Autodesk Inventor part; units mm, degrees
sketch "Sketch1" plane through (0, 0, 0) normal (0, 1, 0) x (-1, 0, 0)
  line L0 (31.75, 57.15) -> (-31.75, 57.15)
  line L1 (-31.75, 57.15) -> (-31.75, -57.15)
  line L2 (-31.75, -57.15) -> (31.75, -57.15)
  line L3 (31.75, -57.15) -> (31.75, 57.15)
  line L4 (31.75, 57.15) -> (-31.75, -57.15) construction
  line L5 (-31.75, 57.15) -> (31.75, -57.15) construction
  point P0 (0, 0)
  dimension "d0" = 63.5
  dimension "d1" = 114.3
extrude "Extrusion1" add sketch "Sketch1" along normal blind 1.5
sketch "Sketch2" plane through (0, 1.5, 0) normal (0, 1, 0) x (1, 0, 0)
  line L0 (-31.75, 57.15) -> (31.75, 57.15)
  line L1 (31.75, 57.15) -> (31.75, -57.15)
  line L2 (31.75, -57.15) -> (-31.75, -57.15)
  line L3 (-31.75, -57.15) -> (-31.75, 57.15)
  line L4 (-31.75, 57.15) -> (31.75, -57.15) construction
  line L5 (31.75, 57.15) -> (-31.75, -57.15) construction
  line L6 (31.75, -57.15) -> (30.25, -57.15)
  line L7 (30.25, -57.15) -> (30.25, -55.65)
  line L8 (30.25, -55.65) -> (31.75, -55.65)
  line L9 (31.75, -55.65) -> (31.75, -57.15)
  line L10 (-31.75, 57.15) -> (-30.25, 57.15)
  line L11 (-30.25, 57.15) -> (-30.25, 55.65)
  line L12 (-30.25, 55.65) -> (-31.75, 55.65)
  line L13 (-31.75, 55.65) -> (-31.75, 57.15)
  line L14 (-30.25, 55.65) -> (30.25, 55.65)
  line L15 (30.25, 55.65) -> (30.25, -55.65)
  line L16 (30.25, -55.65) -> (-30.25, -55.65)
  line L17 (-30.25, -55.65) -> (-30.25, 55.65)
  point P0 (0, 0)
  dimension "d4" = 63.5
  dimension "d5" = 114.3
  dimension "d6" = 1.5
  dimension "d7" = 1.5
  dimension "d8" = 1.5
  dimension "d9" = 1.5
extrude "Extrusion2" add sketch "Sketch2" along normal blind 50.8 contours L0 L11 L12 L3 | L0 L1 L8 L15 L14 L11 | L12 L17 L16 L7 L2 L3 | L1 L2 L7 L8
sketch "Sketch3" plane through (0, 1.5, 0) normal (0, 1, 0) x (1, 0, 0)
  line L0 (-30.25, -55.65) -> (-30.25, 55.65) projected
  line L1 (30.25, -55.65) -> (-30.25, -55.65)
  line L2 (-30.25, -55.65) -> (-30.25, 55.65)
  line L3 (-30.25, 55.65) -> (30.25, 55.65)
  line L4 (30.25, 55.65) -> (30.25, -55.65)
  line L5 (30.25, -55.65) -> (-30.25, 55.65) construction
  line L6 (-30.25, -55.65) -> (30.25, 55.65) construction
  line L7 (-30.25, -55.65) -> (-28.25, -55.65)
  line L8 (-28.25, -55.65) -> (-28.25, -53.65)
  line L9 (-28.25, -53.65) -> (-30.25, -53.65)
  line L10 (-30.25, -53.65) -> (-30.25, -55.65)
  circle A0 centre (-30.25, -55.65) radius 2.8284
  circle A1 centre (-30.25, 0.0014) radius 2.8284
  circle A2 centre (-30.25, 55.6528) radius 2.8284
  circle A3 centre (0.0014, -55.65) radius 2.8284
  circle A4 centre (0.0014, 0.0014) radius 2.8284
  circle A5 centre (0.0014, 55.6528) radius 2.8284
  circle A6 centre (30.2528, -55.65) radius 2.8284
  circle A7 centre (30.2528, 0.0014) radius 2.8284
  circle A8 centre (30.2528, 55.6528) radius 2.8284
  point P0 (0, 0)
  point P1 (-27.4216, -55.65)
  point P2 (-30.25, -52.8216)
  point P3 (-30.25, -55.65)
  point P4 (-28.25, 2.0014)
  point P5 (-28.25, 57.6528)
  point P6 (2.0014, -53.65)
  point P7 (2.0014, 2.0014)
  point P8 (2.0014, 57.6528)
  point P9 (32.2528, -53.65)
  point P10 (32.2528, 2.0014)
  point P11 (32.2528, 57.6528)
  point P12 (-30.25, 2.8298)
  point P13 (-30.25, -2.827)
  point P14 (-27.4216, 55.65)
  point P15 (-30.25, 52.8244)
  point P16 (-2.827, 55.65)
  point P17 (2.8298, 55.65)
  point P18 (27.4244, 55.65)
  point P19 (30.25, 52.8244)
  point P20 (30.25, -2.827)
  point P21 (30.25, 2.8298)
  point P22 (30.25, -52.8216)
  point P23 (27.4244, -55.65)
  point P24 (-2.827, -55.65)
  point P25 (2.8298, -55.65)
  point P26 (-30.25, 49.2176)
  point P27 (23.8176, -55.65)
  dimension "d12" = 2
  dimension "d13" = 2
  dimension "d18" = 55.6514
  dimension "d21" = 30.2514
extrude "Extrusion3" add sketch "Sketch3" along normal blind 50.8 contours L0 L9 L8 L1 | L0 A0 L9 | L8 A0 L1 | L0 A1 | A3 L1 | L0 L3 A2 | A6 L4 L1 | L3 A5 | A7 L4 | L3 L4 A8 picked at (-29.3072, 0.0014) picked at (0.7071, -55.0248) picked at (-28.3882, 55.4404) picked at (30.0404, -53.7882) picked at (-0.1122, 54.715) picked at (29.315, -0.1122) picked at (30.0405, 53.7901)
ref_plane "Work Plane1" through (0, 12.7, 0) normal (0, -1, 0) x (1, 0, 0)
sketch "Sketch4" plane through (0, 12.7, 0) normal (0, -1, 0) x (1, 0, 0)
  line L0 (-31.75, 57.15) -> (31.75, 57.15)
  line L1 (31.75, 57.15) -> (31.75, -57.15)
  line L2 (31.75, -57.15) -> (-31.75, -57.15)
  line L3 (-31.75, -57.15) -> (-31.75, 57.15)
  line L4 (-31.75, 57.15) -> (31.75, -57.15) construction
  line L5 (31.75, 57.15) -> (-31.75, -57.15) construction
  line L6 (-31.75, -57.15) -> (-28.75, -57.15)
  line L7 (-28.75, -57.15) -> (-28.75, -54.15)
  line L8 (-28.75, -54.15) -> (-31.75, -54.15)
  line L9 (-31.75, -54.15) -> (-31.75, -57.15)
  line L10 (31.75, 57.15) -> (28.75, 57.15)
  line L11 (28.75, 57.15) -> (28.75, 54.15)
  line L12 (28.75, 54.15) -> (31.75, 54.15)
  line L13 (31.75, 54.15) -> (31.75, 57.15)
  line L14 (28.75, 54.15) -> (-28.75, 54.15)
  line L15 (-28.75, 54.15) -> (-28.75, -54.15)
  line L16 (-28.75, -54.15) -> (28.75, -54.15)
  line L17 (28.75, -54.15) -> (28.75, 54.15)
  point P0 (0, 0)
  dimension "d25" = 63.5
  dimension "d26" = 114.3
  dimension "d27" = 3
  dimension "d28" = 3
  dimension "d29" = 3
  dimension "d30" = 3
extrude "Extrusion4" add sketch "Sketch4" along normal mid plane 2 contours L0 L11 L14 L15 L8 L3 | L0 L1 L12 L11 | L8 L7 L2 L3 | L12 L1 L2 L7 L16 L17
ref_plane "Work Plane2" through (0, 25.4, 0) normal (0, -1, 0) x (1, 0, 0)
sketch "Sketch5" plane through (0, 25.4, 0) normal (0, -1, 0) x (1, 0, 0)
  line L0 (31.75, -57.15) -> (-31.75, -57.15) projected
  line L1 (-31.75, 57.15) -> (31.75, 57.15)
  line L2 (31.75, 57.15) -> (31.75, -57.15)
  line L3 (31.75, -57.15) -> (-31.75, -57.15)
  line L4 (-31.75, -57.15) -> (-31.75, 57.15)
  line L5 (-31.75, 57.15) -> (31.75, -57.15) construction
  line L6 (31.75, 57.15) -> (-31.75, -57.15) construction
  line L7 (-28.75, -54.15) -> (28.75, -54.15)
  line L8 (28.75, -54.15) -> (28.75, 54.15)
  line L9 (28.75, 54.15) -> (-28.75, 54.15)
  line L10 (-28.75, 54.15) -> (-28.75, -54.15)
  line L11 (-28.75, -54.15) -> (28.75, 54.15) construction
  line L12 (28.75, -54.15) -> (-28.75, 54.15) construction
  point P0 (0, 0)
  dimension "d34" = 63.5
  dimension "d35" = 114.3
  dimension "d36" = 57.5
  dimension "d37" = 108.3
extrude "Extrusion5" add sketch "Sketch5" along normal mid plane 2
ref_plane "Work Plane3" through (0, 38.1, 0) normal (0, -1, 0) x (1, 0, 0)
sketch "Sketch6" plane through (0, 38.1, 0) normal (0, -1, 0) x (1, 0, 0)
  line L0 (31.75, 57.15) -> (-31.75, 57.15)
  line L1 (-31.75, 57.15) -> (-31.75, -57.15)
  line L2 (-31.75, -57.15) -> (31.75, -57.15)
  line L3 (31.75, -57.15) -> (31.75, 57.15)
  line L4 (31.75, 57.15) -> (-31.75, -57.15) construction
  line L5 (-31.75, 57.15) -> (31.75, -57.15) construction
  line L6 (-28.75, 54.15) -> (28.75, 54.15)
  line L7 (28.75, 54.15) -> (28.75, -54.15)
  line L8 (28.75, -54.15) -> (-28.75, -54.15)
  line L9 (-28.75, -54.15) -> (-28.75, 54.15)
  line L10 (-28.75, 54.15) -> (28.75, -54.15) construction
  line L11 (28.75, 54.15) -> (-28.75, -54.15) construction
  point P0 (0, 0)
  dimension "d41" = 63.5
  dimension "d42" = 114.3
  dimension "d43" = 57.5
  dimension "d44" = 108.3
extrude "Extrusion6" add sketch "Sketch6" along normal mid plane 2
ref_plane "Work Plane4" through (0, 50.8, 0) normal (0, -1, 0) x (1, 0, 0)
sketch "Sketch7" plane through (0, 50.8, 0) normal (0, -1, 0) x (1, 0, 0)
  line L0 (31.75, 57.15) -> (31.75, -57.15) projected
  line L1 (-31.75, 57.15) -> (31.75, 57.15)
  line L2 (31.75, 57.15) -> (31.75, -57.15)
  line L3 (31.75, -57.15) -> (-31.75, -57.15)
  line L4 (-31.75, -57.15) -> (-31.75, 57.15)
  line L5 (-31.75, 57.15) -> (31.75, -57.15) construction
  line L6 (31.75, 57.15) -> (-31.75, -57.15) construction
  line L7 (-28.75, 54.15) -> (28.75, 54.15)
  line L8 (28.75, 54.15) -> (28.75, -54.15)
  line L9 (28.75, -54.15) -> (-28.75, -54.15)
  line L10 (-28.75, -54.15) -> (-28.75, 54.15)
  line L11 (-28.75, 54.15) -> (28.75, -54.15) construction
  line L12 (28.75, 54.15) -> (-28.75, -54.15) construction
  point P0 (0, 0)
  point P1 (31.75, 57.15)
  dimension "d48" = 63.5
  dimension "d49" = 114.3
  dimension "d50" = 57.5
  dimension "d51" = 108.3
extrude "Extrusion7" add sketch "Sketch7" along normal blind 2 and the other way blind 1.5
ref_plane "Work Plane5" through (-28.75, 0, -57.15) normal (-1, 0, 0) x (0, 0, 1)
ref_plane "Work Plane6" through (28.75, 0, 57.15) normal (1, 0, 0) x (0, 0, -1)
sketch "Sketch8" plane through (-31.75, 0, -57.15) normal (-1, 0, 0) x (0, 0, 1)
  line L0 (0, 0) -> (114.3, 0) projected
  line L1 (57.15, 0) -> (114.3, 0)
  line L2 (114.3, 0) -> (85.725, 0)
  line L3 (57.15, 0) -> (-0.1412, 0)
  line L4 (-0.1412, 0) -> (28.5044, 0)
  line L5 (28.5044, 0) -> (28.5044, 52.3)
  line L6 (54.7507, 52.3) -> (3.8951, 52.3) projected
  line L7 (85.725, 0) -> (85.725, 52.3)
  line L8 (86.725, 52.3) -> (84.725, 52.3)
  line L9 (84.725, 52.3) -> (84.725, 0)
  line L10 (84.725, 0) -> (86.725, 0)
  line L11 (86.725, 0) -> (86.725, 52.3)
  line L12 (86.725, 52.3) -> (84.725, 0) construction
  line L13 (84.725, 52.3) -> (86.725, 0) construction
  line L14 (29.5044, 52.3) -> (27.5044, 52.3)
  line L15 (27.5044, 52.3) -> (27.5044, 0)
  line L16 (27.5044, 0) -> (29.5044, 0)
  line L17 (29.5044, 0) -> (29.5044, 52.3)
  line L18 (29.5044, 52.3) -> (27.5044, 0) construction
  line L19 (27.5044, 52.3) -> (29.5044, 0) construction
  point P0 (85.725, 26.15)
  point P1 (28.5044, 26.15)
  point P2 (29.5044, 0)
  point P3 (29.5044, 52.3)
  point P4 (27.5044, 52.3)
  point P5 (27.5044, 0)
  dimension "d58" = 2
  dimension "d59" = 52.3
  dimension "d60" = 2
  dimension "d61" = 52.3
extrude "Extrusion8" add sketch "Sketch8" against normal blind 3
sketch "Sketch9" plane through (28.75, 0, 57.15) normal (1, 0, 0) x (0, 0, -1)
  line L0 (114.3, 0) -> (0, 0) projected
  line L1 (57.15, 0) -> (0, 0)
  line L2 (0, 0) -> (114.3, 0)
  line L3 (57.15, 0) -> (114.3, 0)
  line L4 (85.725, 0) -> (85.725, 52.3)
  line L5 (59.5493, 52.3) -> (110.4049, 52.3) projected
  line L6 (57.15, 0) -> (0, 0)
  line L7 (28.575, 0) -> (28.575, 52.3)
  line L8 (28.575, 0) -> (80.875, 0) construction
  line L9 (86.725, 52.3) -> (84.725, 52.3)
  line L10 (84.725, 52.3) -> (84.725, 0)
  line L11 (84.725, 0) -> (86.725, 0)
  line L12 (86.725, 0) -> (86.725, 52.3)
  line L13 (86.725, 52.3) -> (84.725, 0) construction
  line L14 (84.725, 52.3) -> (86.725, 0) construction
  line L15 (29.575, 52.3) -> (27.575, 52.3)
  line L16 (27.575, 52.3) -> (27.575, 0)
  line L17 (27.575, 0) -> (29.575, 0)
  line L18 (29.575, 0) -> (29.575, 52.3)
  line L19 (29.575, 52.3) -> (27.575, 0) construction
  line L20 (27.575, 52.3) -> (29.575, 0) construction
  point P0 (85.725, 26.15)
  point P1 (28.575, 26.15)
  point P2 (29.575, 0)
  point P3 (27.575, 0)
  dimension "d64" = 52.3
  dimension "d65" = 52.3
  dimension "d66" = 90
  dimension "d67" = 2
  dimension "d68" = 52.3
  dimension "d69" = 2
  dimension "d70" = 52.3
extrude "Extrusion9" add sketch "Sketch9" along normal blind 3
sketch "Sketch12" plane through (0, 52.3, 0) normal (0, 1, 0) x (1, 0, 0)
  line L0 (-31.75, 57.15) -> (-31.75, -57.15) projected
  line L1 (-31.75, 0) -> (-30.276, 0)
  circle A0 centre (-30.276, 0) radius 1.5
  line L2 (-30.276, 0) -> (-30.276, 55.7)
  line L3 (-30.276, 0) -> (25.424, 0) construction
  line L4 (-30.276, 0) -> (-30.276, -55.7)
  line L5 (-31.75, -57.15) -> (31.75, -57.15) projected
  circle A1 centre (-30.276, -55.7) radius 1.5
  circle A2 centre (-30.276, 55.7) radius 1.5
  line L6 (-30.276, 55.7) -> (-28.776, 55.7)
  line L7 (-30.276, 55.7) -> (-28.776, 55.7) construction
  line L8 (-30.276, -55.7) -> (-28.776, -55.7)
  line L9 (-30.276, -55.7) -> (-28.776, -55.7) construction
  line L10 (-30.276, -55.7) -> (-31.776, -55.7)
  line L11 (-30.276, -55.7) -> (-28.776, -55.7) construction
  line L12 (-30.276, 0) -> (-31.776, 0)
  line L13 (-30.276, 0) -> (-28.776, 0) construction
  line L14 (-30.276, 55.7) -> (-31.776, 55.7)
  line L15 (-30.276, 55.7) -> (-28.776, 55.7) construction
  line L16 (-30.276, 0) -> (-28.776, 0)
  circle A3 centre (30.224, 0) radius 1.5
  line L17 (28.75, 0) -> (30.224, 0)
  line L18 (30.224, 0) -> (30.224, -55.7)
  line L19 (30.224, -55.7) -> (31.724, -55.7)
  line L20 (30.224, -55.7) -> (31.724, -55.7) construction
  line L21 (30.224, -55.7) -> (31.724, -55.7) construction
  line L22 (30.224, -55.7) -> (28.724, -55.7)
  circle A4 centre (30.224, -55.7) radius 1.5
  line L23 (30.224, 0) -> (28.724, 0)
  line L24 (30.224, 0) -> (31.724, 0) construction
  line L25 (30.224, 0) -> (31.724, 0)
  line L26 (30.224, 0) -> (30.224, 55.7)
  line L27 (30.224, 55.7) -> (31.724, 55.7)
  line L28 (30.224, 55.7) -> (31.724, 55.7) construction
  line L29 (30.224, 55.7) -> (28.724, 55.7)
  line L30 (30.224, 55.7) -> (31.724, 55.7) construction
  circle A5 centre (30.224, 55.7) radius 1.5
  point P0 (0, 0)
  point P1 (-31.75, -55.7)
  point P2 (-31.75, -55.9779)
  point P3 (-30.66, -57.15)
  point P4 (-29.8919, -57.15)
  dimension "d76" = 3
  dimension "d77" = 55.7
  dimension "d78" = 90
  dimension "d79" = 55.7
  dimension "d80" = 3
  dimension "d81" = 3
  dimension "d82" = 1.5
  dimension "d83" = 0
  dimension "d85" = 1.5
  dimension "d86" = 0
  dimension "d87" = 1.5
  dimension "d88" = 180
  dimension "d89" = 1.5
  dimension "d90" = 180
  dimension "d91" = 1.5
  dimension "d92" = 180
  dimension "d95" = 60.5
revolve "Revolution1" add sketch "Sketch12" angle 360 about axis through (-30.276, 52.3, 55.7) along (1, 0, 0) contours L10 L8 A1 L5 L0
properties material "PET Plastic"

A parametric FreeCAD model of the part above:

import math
import FreeCAD as App
import Part
import Sketcher
from FreeCAD import Vector


def add_polygon(sketch, points):
    """Adds a closed chain of lines whose ends are joined by coincident constraints."""
    first, n = sketch.GeometryCount, len(points)
    for a, b in zip(points, points[1:] + points[:1]):
        sketch.addGeometry(Part.LineSegment(App.Vector(*a, 0), App.Vector(*b, 0)), False)
    for i in range(n):
        sketch.addConstraint(Sketcher.Constraint("Coincident", first + i, 2, first + (i + 1) % n, 1))

doc = App.newDocument("Part")
params = doc.addObject("Spreadsheet::Sheet", "Params")
for row, (alias, value) in enumerate([
    ("sketch1_width", "63.5 mm"),
    ("sketch1_height", "114.3 mm"),
    ("pad1_length", "1.5 mm"),
    ("sketch2_width", "63.5 mm"),
    ("sketch2_height", "114.3 mm"),
    ("pad2_length", "50.8 mm"),
    ("pad3_length", "50.8 mm"),
    ("sketch4_width", "63.5 mm"),
    ("sketch4_height", "114.3 mm"),
    ("pad4_length", "2 mm"),
    ("sketch5_width", "63.5 mm"),
    ("sketch5_width2", "57.5 mm"),
    ("sketch5_height", "114.3 mm"),
    ("sketch5_height2", "108.3 mm"),
    ("pad5_length", "2 mm"),
    ("sketch6_width", "63.5 mm"),
    ("sketch6_width2", "57.5 mm"),
    ("sketch6_height", "114.3 mm"),
    ("sketch6_height2", "108.3 mm"),
    ("pad6_length", "2 mm"),
    ("sketch7_width", "63.5 mm"),
    ("sketch7_width2", "57.5 mm"),
    ("sketch7_height", "114.3 mm"),
    ("sketch7_height2", "108.3 mm"),
    ("pad7_length", "2 mm"),
    ("pad7_length2", "1.5 mm"),
    ("sketch8_height", "2 mm"),
    ("sketch8_width", "52.3 mm"),
    ("pad8_length", "3 mm"),
    ("sketch9_height", "2 mm"),
    ("sketch9_width", "52.3 mm"),
    ("pad9_length", "3 mm"),
    ("sketch10_radius", "1.5 mm"),
    ("revolution_angle", "360 deg"),
], start=1):
    params.set(f"A{row}", alias)
    params.set(f"B{row}", "=" + value)
    params.setAlias(f"B{row}", alias)

body = doc.addObject("PartDesign::Body", "Body")

sketch1 = doc.addObject("Sketcher::SketchObject", "Sketch")
body.addObject(sketch1)
sketch1.AttachmentSupport = (doc.XZ_Plane, [""])
sketch1.MapMode = "FlatFace"
add_polygon(sketch1, [(-32, -57), (-32, 57), (32, 57), (32, -57)])
sketch1.addConstraint([
    Sketcher.Constraint("Vertical", 0),
    Sketcher.Constraint("Horizontal", 1),
    Sketcher.Constraint("Vertical", 2),
    Sketcher.Constraint("Horizontal", 3),
    Sketcher.Constraint("Symmetric", 0, 2, 2, 2, -1, 1),
    Sketcher.Constraint("DistanceX", 1, 1, 1, 2, 63.5),
    Sketcher.Constraint("DistanceY", 0, 1, 0, 2, 114.3),
])
sketch1.setExpression("Constraints[9]", "Params.sketch1_width")
sketch1.setExpression("Constraints[10]", "Params.sketch1_height")
pad1 = doc.addObject("PartDesign::Pad", "Pad")
body.addObject(pad1)
pad1.Profile = sketch1
pad1.setExpression("Length", "Params.pad1_length")
pad1.Reversed = True

sketch2 = doc.addObject("Sketcher::SketchObject", "Sketch001")
body.addObject(sketch2)
sketch2.AttachmentSupport = (doc.XZ_Plane, [""])
sketch2.MapMode = "FlatFace"
sketch2.AttachmentOffset = App.Placement(Vector(0, 0, -1.5), App.Rotation())
add_polygon(sketch2, [(-32, -57), (-32, 57), (32, 57), (32, -57)])
add_polygon(sketch2, [(30, -56), (30, 56), (-30, 56), (-30, -56)])
sketch2.addConstraint([
    Sketcher.Constraint("Vertical", 0),
    Sketcher.Constraint("Horizontal", 1),
    Sketcher.Constraint("Vertical", 2),
    Sketcher.Constraint("Horizontal", 3),
    Sketcher.Constraint("Vertical", 4),
    Sketcher.Constraint("Horizontal", 5),
    Sketcher.Constraint("Vertical", 6),
    Sketcher.Constraint("Horizontal", 7),
    Sketcher.Constraint("Symmetric", 0, 2, 2, 2, -1, 1),
    Sketcher.Constraint("Symmetric", 4, 2, 6, 2, -1, 1),
    Sketcher.Constraint("DistanceX", 1, 1, 1, 2, 63.5),
    Sketcher.Constraint("DistanceY", 0, 1, 0, 2, 114.3),
    Sketcher.Constraint("DistanceX", 4, 2, 1, 2, 1.5),
    Sketcher.Constraint("DistanceY", 4, 2, 1, 2, 1.5),
])
sketch2.setExpression("Constraints[18]", "Params.sketch2_width")
sketch2.setExpression("Constraints[19]", "Params.sketch2_height")
pad2 = doc.addObject("PartDesign::Pad", "Pad001")
body.addObject(pad2)
pad2.Profile = sketch2
pad2.setExpression("Length", "Params.pad2_length")
pad2.Reversed = True

sketch3 = doc.addObject("Sketcher::SketchObject", "Sketch002")
body.addObject(sketch3)
sketch3.AttachmentSupport = (doc.XZ_Plane, [""])
sketch3.MapMode = "FlatFace"
sketch3.AttachmentOffset = App.Placement(Vector(0, 0, -1.5), App.Rotation())
sketch3.addGeometry([
    Part.LineSegment(Vector(-30.2, 55.6, 0), Vector(-27.4, 55.6, 0)),
    Part.ArcOfCircle(Part.Circle(Vector(-30.2, 55.6, 0), Vector(0, 0, 1), 2.8), math.radians(-90), math.radians(0)),
    Part.LineSegment(Vector(-30.2, 52.8, 0), Vector(-30.2, 55.6, 0)),
    Part.LineSegment(Vector(-30.2, -2.8, 0), Vector(-30.2, 2.8, 0)),
    Part.ArcOfCircle(Part.Circle(Vector(-30.2, 0, 0), Vector(0, 0, 1), 2.8), math.radians(-90), math.radians(90)),
    Part.ArcOfCircle(Part.Circle(Vector(0, 55.6, 0), Vector(0, 0, 1), 2.8), math.radians(180), math.radians(360)),
    Part.LineSegment(Vector(-2.8, 55.6, 0), Vector(2.8, 55.6, 0)),
    Part.LineSegment(Vector(-30.2, -55.6, 0), Vector(-30.2, -52.8, 0)),
    Part.ArcOfCircle(Part.Circle(Vector(-30.2, -55.7, 0), Vector(0, 0, 1), 2.8), math.radians(0), math.radians(90)),
    Part.LineSegment(Vector(-27.4, -55.6, 0), Vector(-30.2, -55.6, 0)),
    Part.ArcOfCircle(Part.Circle(Vector(30.3, 55.6, 0), Vector(0, 0, 1), 2.8), math.radians(180), math.radians(270)),
    Part.LineSegment(Vector(27.4, 55.6, 0), Vector(30.2, 55.6, 0)),
    Part.LineSegment(Vector(30.2, 55.6, 0), Vector(30.2, 52.8, 0)),
    Part.LineSegment(Vector(2.8, -55.6, 0), Vector(-2.8, -55.6, 0)),
    Part.ArcOfCircle(Part.Circle(Vector(0, -55.7, 0), Vector(0, 0, 1), 2.8), math.radians(0), math.radians(180)),
    Part.ArcOfCircle(Part.Circle(Vector(30.3, 0, 0), Vector(0, 0, 1), 2.8), math.radians(90), math.radians(270)),
    Part.LineSegment(Vector(30.2, 2.8, 0), Vector(30.2, -2.8, 0)),
    Part.LineSegment(Vector(30.2, -55.6, 0), Vector(27.4, -55.6, 0)),
    Part.ArcOfCircle(Part.Circle(Vector(30.3, -55.7, 0), Vector(0, 0, 1), 2.8), math.radians(90), math.radians(180)),
    Part.LineSegment(Vector(30.2, -52.8, 0), Vector(30.2, -55.6, 0)),
], False)
sketch3.addConstraint([
    Sketcher.Constraint("Coincident", 0, 2, 1, 2),
    Sketcher.Constraint("Coincident", 1, 1, 2, 1),
    Sketcher.Constraint("Coincident", 2, 2, 0, 1),
    Sketcher.Constraint("Coincident", 3, 1, 4, 1),
    Sketcher.Constraint("Coincident", 4, 2, 3, 2),
    Sketcher.Constraint("Coincident", 5, 1, 6, 1),
    Sketcher.Constraint("Coincident", 6, 2, 5, 2),
    Sketcher.Constraint("Coincident", 7, 2, 8, 2),
    Sketcher.Constraint("Coincident", 8, 1, 9, 1),
    Sketcher.Constraint("Coincident", 9, 2, 7, 1),
    Sketcher.Constraint("Coincident", 10, 1, 11, 1),
    Sketcher.Constraint("Coincident", 11, 2, 12, 1),
    Sketcher.Constraint("Coincident", 12, 2, 10, 2),
    Sketcher.Constraint("Coincident", 13, 1, 14, 1),
    Sketcher.Constraint("Coincident", 14, 2, 13, 2),
    Sketcher.Constraint("Coincident", 15, 1, 16, 1),
    Sketcher.Constraint("Coincident", 16, 2, 15, 2),
    Sketcher.Constraint("Coincident", 17, 2, 18, 2),
    Sketcher.Constraint("Coincident", 18, 1, 19, 1),
    Sketcher.Constraint("Coincident", 19, 2, 17, 1),
    Sketcher.Constraint("Horizontal", 0),
    Sketcher.Constraint("Vertical", 2),
    Sketcher.Constraint("Vertical", 3),
    Sketcher.Constraint("Horizontal", 6),
    Sketcher.Constraint("Vertical", 7),
    Sketcher.Constraint("Horizontal", 9),
    Sketcher.Constraint("Horizontal", 11),
    Sketcher.Constraint("Vertical", 12),
    Sketcher.Constraint("Horizontal", 13),
    Sketcher.Constraint("Vertical", 16),
    Sketcher.Constraint("Horizontal", 17),
    Sketcher.Constraint("Vertical", 19),
    Sketcher.Constraint("Coincident", 2, 2, 1, 3),
    Sketcher.Constraint("Equal", 1, 4),
    Sketcher.Constraint("Equal", 4, 5),
    Sketcher.Constraint("Equal", 5, 8),
    Sketcher.Constraint("Equal", 8, 10),
    Sketcher.Constraint("Equal", 10, 14),
    Sketcher.Constraint("Equal", 14, 15),
    Sketcher.Constraint("Equal", 15, 18),
    Sketcher.Constraint("Symmetric", 9, 2, 11, 2, -1, 1),
    Sketcher.Constraint("Symmetric", 2, 2, 19, 2, -1, 1),
    Sketcher.Constraint("Symmetric", 2, 2, 11, 2, -2),
    Sketcher.Constraint("Symmetric", 4, 2, 15, 1, -2),
    Sketcher.Constraint("Symmetric", 6, 2, 13, 1, -1),
    Sketcher.Constraint("Horizontal", 1, 3, 5, 3),
    Sketcher.Constraint("Horizontal", 5, 3, 10, 3),
    Sketcher.Constraint("Horizontal", 8, 3, 14, 3),
    Sketcher.Constraint("Horizontal", 14, 3, 18, 3),
    Sketcher.Constraint("Horizontal", 2, 2, 5, 1),
    Sketcher.Constraint("Vertical", 1, 3, 4, 3),
    Sketcher.Constraint("Vertical", 4, 3, 8, 3),
    Sketcher.Constraint("Vertical", 10, 3, 15, 3),
    Sketcher.Constraint("Vertical", 15, 3, 18, 3),
    Sketcher.Constraint("Vertical", 2, 2, 3, 1),
    Sketcher.Constraint("Equal", 17, 7),
    Sketcher.Constraint("Radius", 1, 2.8284),
    Sketcher.Constraint("DistanceY", 4, 3, 1, 3, 55.6514),
    Sketcher.Constraint("DistanceX", 1, 3, 5, 3, 30.2514),
    Sketcher.Constraint("DistanceY", 8, 3, 4, 3, 55.6514),
    Sketcher.Constraint("DistanceX", 5, 3, 10, 3, 30.2514),
    Sketcher.Constraint("DistanceX", 1, 3, -1, 1, 30.25),
])
pad3 = doc.addObject("PartDesign::Pad", "Pad002")
body.addObject(pad3)
pad3.Profile = sketch3
pad3.setExpression("Length", "Params.pad3_length")
pad3.Reversed = True

sketch4 = doc.addObject("Sketcher::SketchObject", "Sketch003")
body.addObject(sketch4)
sketch4.AttachmentSupport = (doc.XZ_Plane, [""])
sketch4.MapMode = "FlatFace"
sketch4.AttachmentOffset = App.Placement(Vector(0, 0, -12.7), App.Rotation())
add_polygon(sketch4, [(-32, 57), (-32, -57), (32, -57), (32, 57)])
add_polygon(sketch4, [(-29, 54), (29, 54), (29, -54), (-29, -54)])
sketch4.addConstraint([
    Sketcher.Constraint("Vertical", 0),
    Sketcher.Constraint("Horizontal", 1),
    Sketcher.Constraint("Vertical", 2),
    Sketcher.Constraint("Horizontal", 3),
    Sketcher.Constraint("Horizontal", 4),
    Sketcher.Constraint("Vertical", 5),
    Sketcher.Constraint("Horizontal", 6),
    Sketcher.Constraint("Vertical", 7),
    Sketcher.Constraint("Symmetric", 0, 2, 2, 2, -1, 1),
    Sketcher.Constraint("Symmetric", 4, 2, 6, 2, -1, 1),
    Sketcher.Constraint("DistanceX", 1, 1, 1, 2, 63.5),
    Sketcher.Constraint("DistanceY", 0, 2, 0, 1, 114.3),
    Sketcher.Constraint("DistanceX", 4, 2, 2, 2, 3.0),
    Sketcher.Constraint("DistanceY", 4, 2, 2, 2, 3.0),
])
sketch4.setExpression("Constraints[18]", "Params.sketch4_width")
sketch4.setExpression("Constraints[19]", "Params.sketch4_height")
pad4 = doc.addObject("PartDesign::Pad", "Pad003")
body.addObject(pad4)
pad4.Profile = sketch4
pad4.setExpression("Length", "Params.pad4_length")
pad4.Midplane = True

sketch5 = doc.addObject("Sketcher::SketchObject", "Sketch004")
body.addObject(sketch5)
sketch5.AttachmentSupport = (doc.XZ_Plane, [""])
sketch5.MapMode = "FlatFace"
sketch5.AttachmentOffset = App.Placement(Vector(0, 0, -25.4), App.Rotation())
add_polygon(sketch5, [(-32, -57), (32, -57), (32, 57), (-32, 57)])
add_polygon(sketch5, [(29, -54), (-29, -54), (-29, 54), (29, 54)])
sketch5.addConstraint([
    Sketcher.Constraint("Horizontal", 0),
    Sketcher.Constraint("Vertical", 1),
    Sketcher.Constraint("Horizontal", 2),
    Sketcher.Constraint("Vertical", 3),
    Sketcher.Constraint("Horizontal", 4),
    Sketcher.Constraint("Vertical", 5),
    Sketcher.Constraint("Horizontal", 6),
    Sketcher.Constraint("Vertical", 7),
    Sketcher.Constraint("Symmetric", 0, 2, 2, 2, -1, 1),
    Sketcher.Constraint("Symmetric", 4, 2, 6, 2, -1, 1),
    Sketcher.Constraint("DistanceX", 0, 1, 0, 2, 63.5),
    Sketcher.Constraint("DistanceX", 4, 2, 4, 1, 57.5),
    Sketcher.Constraint("DistanceY", 1, 1, 1, 2, 114.3),
    Sketcher.Constraint("DistanceY", 5, 1, 5, 2, 108.3),
])
sketch5.setExpression("Constraints[18]", "Params.sketch5_width")
sketch5.setExpression("Constraints[19]", "Params.sketch5_width2")
sketch5.setExpression("Constraints[20]", "Params.sketch5_height")
sketch5.setExpression("Constraints[21]", "Params.sketch5_height2")
pad5 = doc.addObject("PartDesign::Pad", "Pad004")
body.addObject(pad5)
pad5.Profile = sketch5
pad5.setExpression("Length", "Params.pad5_length")
pad5.Midplane = True

sketch6 = doc.addObject("Sketcher::SketchObject", "Sketch005")
body.addObject(sketch6)
sketch6.AttachmentSupport = (doc.XZ_Plane, [""])
sketch6.MapMode = "FlatFace"
sketch6.AttachmentOffset = App.Placement(Vector(0, 0, -38.1), App.Rotation())
add_polygon(sketch6, [(32, -57), (32, 57), (-32, 57), (-32, -57)])
add_polygon(sketch6, [(-29, -54), (-29, 54), (29, 54), (29, -54)])
sketch6.addConstraint([
    Sketcher.Constraint("Vertical", 0),
    Sketcher.Constraint("Horizontal", 1),
    Sketcher.Constraint("Vertical", 2),
    Sketcher.Constraint("Horizontal", 3),
    Sketcher.Constraint("Vertical", 4),
    Sketcher.Constraint("Horizontal", 5),
    Sketcher.Constraint("Vertical", 6),
    Sketcher.Constraint("Horizontal", 7),
    Sketcher.Constraint("Symmetric", 0, 2, 2, 2, -1, 1),
    Sketcher.Constraint("Symmetric", 4, 2, 6, 2, -1, 1),
    Sketcher.Constraint("DistanceX", 1, 2, 1, 1, 63.5),
    Sketcher.Constraint("DistanceX", 5, 1, 5, 2, 57.5),
    Sketcher.Constraint("DistanceY", 0, 1, 0, 2, 114.3),
    Sketcher.Constraint("DistanceY", 4, 1, 4, 2, 108.3),
])
sketch6.setExpression("Constraints[18]", "Params.sketch6_width")
sketch6.setExpression("Constraints[19]", "Params.sketch6_width2")
sketch6.setExpression("Constraints[20]", "Params.sketch6_height")
sketch6.setExpression("Constraints[21]", "Params.sketch6_height2")
pad6 = doc.addObject("PartDesign::Pad", "Pad005")
body.addObject(pad6)
pad6.Profile = sketch6
pad6.setExpression("Length", "Params.pad6_length")
pad6.Midplane = True

sketch7 = doc.addObject("Sketcher::SketchObject", "Sketch006")
body.addObject(sketch7)
sketch7.AttachmentSupport = (doc.XZ_Plane, [""])
sketch7.MapMode = "FlatFace"
sketch7.AttachmentOffset = App.Placement(Vector(0, 0, -50.8), App.Rotation())
add_polygon(sketch7, [(32, -57), (32, 57), (-32, 57), (-32, -57)])
add_polygon(sketch7, [(-29, -54), (-29, 54), (29, 54), (29, -54)])
sketch7.addConstraint([
    Sketcher.Constraint("Vertical", 0),
    Sketcher.Constraint("Horizontal", 1),
    Sketcher.Constraint("Vertical", 2),
    Sketcher.Constraint("Horizontal", 3),
    Sketcher.Constraint("Vertical", 4),
    Sketcher.Constraint("Horizontal", 5),
    Sketcher.Constraint("Vertical", 6),
    Sketcher.Constraint("Horizontal", 7),
    Sketcher.Constraint("Symmetric", 0, 2, 2, 2, -1, 1),
    Sketcher.Constraint("Symmetric", 4, 2, 6, 2, -1, 1),
    Sketcher.Constraint("DistanceX", 1, 2, 1, 1, 63.5),
    Sketcher.Constraint("DistanceX", 5, 1, 5, 2, 57.5),
    Sketcher.Constraint("DistanceY", 0, 1, 0, 2, 114.3),
    Sketcher.Constraint("DistanceY", 4, 1, 4, 2, 108.3),
])
sketch7.setExpression("Constraints[18]", "Params.sketch7_width")
sketch7.setExpression("Constraints[19]", "Params.sketch7_width2")
sketch7.setExpression("Constraints[20]", "Params.sketch7_height")
sketch7.setExpression("Constraints[21]", "Params.sketch7_height2")
pad7 = doc.addObject("PartDesign::Pad", "Pad006")
body.addObject(pad7)
pad7.Profile = sketch7
pad7.Type = "TwoLengths"
pad7.setExpression("Length", "Params.pad7_length")
pad7.setExpression("Length2", "Params.pad7_length2")

sketch8 = doc.addObject("Sketcher::SketchObject", "Sketch007")
body.addObject(sketch8)
sketch8.AttachmentSupport = (doc.YZ_Plane, [""])
sketch8.MapMode = "FlatFace"
sketch8.AttachmentOffset = App.Placement(Vector(0, 0, -31.75), App.Rotation())
add_polygon(sketch8, [(52.3, -29.6), (0, -29.6), (0, -27.6), (52.3, -27.6)])
add_polygon(sketch8, [(52.3, 27.6), (0, 27.6), (0, 29.6), (52.3, 29.6)])
sketch8.addConstraint([
    Sketcher.Constraint("Horizontal", 0),
    Sketcher.Constraint("Vertical", 1),
    Sketcher.Constraint("Horizontal", 2),
    Sketcher.Constraint("Vertical", 3),
    Sketcher.Constraint("Horizontal", 4),
    Sketcher.Constraint("Vertical", 5),
    Sketcher.Constraint("Horizontal", 6),
    Sketcher.Constraint("Vertical", 7),
    Sketcher.Constraint("PointOnObject", 0, 2, -2),
    Sketcher.Constraint("PointOnObject", 4, 2, -2),
    Sketcher.Constraint("Vertical", 3, 2, 6, 2),
    Sketcher.Constraint("Equal", 3, 5),
    Sketcher.Constraint("DistanceY", 1, 1, 1, 2, 2.0),
    Sketcher.Constraint("DistanceX", 0, 2, 0, 1, 52.3),
    Sketcher.Constraint("DistanceY", -1, 1, 4, 2, 27.575),
    Sketcher.Constraint("DistanceY", 0, 2, -1, 1, 29.6456),
])
sketch8.setExpression("Constraints[20]", "Params.sketch8_height")
sketch8.setExpression("Constraints[21]", "Params.sketch8_width")
pad8 = doc.addObject("PartDesign::Pad", "Pad007")
body.addObject(pad8)
pad8.Profile = sketch8
pad8.setExpression("Length", "Params.pad8_length")

sketch9 = doc.addObject("Sketcher::SketchObject", "Sketch008")
body.addObject(sketch9)
sketch9.AttachmentSupport = (doc.YZ_Plane, [""])
sketch9.MapMode = "FlatFace"
sketch9.AttachmentOffset = App.Placement(Vector(0, 0, 28.75), App.Rotation())
add_polygon(sketch9, [(0, 27.6), (52.3, 27.6), (52.3, 29.6), (0, 29.6)])
add_polygon(sketch9, [(0, -29.6), (52.3, -29.6), (52.3, -27.6), (0, -27.6)])
sketch9.addConstraint([
    Sketcher.Constraint("Horizontal", 0),
    Sketcher.Constraint("Vertical", 1),
    Sketcher.Constraint("Horizontal", 2),
    Sketcher.Constraint("Vertical", 3),
    Sketcher.Constraint("Horizontal", 4),
    Sketcher.Constraint("Vertical", 5),
    Sketcher.Constraint("Horizontal", 6),
    Sketcher.Constraint("Vertical", 7),
    Sketcher.Constraint("Symmetric", 3, 2, 6, 2, -1, 1),
    Sketcher.Constraint("Symmetric", 1, 2, 4, 2, -1),
    Sketcher.Constraint("PointOnObject", 2, 2, -2),
    Sketcher.Constraint("DistanceY", 1, 1, 1, 2, 2.0),
    Sketcher.Constraint("DistanceX", 0, 1, 0, 2, 52.3),
    Sketcher.Constraint("DistanceY", 4, 2, 0, 2, 57.15),
])
sketch9.setExpression("Constraints[19]", "Params.sketch9_height")
sketch9.setExpression("Constraints[20]", "Params.sketch9_width")
pad9 = doc.addObject("PartDesign::Pad", "Pad008")
body.addObject(pad9)
pad9.Profile = sketch9
pad9.setExpression("Length", "Params.pad9_length")

sketch10 = doc.addObject("Sketcher::SketchObject", "Sketch009")
body.addObject(sketch10)
sketch10.AttachmentSupport = (doc.XZ_Plane, [""])
sketch10.MapMode = "FlatFace"
sketch10.AttachmentOffset = App.Placement(Vector(0, 0, -52.3), App.Rotation())
sketch10.addGeometry([
    Part.LineSegment(Vector(-28.78, 55.7, 0), Vector(-31.75, 55.7, 0)),
    Part.LineSegment(Vector(-31.75, 55.7, 0), Vector(-31.75, 55.98, 0)),
    Part.ArcOfCircle(Part.Circle(Vector(-30.28, 55.7, 0), Vector(0, 0, 1), 1.5), math.radians(105), math.radians(169)),
    Part.LineSegment(Vector(-30.66, 57.15, 0), Vector(-29.89, 57.15, 0)),
    Part.ArcOfCircle(Part.Circle(Vector(-30.28, 55.7, 0), Vector(0, 0, 1), 1.5), math.radians(0), math.radians(75)),
], False)
sketch10.addGeometry(Part.LineSegment(Vector(-31.75, 55.7, 0), Vector(-28.78, 55.7, 0)), True)
sketch10.addConstraint([
    Sketcher.Constraint("Coincident", 0, 2, 1, 1),
    Sketcher.Constraint("Coincident", 1, 2, 2, 2),
    Sketcher.Constraint("Coincident", 2, 1, 3, 1),
    Sketcher.Constraint("Coincident", 3, 2, 4, 2),
    Sketcher.Constraint("Coincident", 4, 1, 0, 1),
    Sketcher.Constraint("Horizontal", 0),
    Sketcher.Constraint("Vertical", 1),
    Sketcher.Constraint("Horizontal", 3),
    Sketcher.Constraint("Horizontal", 5),
    Sketcher.Constraint("Coincident", 4, 3, 2, 3),
    Sketcher.Constraint("Coincident", 5, 1, 0, 2),
    Sketcher.Constraint("Equal", 2, 4),
    Sketcher.Constraint("Horizontal", 4, 3, 0, 2),
    Sketcher.Constraint("Equal", 0, 5),
    Sketcher.Constraint("Radius", 2, 1.5),
    Sketcher.Constraint("DistanceY", -1, 1, 2, 3, 55.7),
    Sketcher.Constraint("DistanceX", 0, 2, 0, 1, 2.974),
    Sketcher.Constraint("DistanceX", 3, 1, 3, 2, 0.768),
    Sketcher.Constraint("DistanceX", 0, 2, -1, 1, 31.75),
])
sketch10.setExpression("Constraints[14]", "Params.sketch10_radius")
revolution = doc.addObject("PartDesign::Revolution", "Revolution")
body.addObject(revolution)
revolution.Profile = sketch10
revolution.ReferenceAxis = (sketch10, ["Axis0"])
revolution.setExpression("Angle", "Params.revolution_angle")

doc.recompute()
